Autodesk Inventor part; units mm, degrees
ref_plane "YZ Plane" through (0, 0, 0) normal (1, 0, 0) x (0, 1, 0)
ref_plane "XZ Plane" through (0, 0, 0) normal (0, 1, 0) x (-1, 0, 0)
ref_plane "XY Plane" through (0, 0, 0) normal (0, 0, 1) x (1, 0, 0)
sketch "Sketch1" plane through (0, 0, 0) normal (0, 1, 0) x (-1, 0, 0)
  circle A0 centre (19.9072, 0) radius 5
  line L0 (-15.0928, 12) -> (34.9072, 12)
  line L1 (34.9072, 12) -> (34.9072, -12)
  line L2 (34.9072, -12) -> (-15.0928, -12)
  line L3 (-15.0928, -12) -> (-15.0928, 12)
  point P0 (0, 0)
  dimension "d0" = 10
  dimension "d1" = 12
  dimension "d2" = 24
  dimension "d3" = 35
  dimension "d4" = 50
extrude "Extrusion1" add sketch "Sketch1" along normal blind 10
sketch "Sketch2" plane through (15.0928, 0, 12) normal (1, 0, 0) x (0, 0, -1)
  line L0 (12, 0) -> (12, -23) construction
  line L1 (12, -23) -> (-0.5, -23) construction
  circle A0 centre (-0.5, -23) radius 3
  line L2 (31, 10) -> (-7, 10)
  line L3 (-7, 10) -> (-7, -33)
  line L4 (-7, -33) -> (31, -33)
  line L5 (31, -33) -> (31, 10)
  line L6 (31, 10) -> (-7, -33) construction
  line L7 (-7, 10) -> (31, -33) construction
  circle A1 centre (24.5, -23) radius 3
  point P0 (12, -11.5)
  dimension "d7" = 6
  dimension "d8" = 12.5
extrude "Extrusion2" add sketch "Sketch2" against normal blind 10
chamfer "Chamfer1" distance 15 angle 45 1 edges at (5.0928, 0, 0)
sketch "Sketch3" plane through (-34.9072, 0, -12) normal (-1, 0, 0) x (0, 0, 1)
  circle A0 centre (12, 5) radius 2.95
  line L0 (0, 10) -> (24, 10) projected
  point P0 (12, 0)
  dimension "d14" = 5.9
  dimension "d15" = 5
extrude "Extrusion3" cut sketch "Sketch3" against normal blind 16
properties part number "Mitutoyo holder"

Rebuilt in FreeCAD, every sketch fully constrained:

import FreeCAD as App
import Part
import Sketcher


def edges_at(feature, points):
    """Names of the edges that pass closest to the given points."""
    edges = feature.Shape.Edges
    near = lambda p: min(range(len(edges)), key=lambda i: edges[i].distToShape(Part.Vertex(*p))[0])
    return sorted({f"Edge{near(p) + 1}" for p in points})


def add_polygon(sketch, points):
    """Adds a closed chain of lines whose ends are joined by coincident constraints."""
    first, n = sketch.GeometryCount, len(points)
    for a, b in zip(points, points[1:] + points[:1]):
        sketch.addGeometry(Part.LineSegment(App.Vector(*a, 0), App.Vector(*b, 0)), False)
    for i in range(n):
        sketch.addConstraint(Sketcher.Constraint("Coincident", first + i, 2, first + (i + 1) % n, 1))

doc = App.newDocument("Part")
body = doc.addObject("PartDesign::Body", "Body")

sketch1 = body.newObject("Sketcher::SketchObject", "Sketch")
sketch1.AttachmentSupport = (doc.getObject("XZ_Plane"), [""])
sketch1.MapMode = "FlatFace"
add_polygon(sketch1, [(-35, 12), (15, 12), (15, -12), (-35, -12)])
sketch1.addGeometry(Part.Circle(App.Vector(-20, 0, 0), App.Vector(0, 0, 1), 5), False)
sketch1.addConstraint([
    Sketcher.Constraint("Horizontal", 0),
    Sketcher.Constraint("Vertical", 1),
    Sketcher.Constraint("Horizontal", 2),
    Sketcher.Constraint("Vertical", 3),
    Sketcher.Constraint("PointOnObject", 4, 3, -1),
    Sketcher.Constraint("Diameter", 4, 10.0),
    Sketcher.Constraint("DistanceX", 0, 1, 0, 2, 50.0),
    Sketcher.Constraint("DistanceY", 1, 2, 1, 1, 24.0),
    Sketcher.Constraint("DistanceY", -1, 1, 0, 2, 12.0),
    Sketcher.Constraint("DistanceX", 4, 3, 0, 2, 35.0),
    Sketcher.Constraint("DistanceX", 4, 3, -1, 1, 19.9072),
])
pad1 = body.newObject("PartDesign::Pad", "Pad")
pad1.Profile = sketch1
pad1.Length = 10
pad1.Reversed = True

sketch2 = body.newObject("Sketcher::SketchObject", "Sketch001")
sketch2.AttachmentSupport = (doc.getObject("YZ_Plane"), [""])
sketch2.MapMode = "FlatFace"
sketch2.AttachmentOffset = App.Placement(App.Vector(0, 0, 15.0928), App.Rotation())
add_polygon(sketch2, [(-33, -19), (10, -19), (10, 19), (-33, 19)])
sketch2.addGeometry(Part.Circle(App.Vector(-23, 12.5, 0), App.Vector(0, 0, 1), 3), False)
sketch2.addGeometry(Part.Circle(App.Vector(-23, -12.5, 0), App.Vector(0, 0, 1), 3), False)
sketch2.addConstraint([
    Sketcher.Constraint("Horizontal", 0),
    Sketcher.Constraint("Vertical", 1),
    Sketcher.Constraint("Horizontal", 2),
    Sketcher.Constraint("Vertical", 3),
    Sketcher.Constraint("Equal", 4, 5),
    Sketcher.Constraint("Symmetric", 4, 3, 5, 3, -1),
    Sketcher.Constraint("Diameter", 4, 6.0),
    Sketcher.Constraint("DistanceY", -1, 1, 4, 3, 12.5),
    Sketcher.Constraint("DistanceX", 0, 1, 0, 2, 43.0),
    Sketcher.Constraint("DistanceY", 1, 1, 1, 2, 38.0),
    Sketcher.Constraint("DistanceX", 4, 3, -1, 1, 23.0),
    Sketcher.Constraint("DistanceX", -1, 1, 0, 2, 10.0),
    Sketcher.Constraint("DistanceY", 0, 2, -1, 1, 19.0),
])
pad2 = body.newObject("PartDesign::Pad", "Pad001")
pad2.Profile = sketch2
pad2.Length = 10
pad2.Reversed = True
doc.recompute()

chamfer = body.newObject("PartDesign::Chamfer", "Chamfer")
chamfer.Base = (pad2, edges_at(pad2, [(5.093, 0, 0)]))
chamfer.Size = 15

sketch3 = body.newObject("Sketcher::SketchObject", "Sketch002")
sketch3.AttachmentSupport = (doc.getObject("YZ_Plane"), [""])
sketch3.MapMode = "FlatFace"
sketch3.AttachmentOffset = App.Placement(App.Vector(0, 0, -34.9072), App.Rotation())
sketch3.addGeometry(Part.Circle(App.Vector(5, 0, 0), App.Vector(0, 0, 1), 3), False)
sketch3.addConstraint([
    Sketcher.Constraint("PointOnObject", 0, 3, -1),
    Sketcher.Constraint("Diameter", 0, 5.9),
    Sketcher.Constraint("DistanceX", -1, 1, 0, 3, 5.0),
])
pocket1 = body.newObject("PartDesign::Pocket", "Pocket")
pocket1.Profile = sketch3
pocket1.Length = 16
pocket1.Reversed = True

doc.recompute()
